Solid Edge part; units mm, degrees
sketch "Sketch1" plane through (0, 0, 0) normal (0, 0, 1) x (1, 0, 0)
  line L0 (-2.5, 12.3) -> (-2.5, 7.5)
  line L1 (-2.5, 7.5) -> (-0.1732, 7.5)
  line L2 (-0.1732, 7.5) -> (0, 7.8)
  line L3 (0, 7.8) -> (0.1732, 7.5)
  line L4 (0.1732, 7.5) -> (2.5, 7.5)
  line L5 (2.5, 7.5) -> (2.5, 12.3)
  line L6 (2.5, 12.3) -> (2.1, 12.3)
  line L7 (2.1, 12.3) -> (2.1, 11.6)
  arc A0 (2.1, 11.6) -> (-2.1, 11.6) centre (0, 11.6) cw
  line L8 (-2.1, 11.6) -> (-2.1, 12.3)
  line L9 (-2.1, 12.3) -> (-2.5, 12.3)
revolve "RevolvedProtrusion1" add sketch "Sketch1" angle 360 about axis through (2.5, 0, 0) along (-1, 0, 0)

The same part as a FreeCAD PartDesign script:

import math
import FreeCAD as App
import Part
import Sketcher
Q = App.Units.Quantity

doc = App.newDocument("Part")
body = doc.addObject("PartDesign::Body", "Body")

# Sketch on XY plane
sketch1 = body.newObject("Sketcher::SketchObject", "Sketch")
sketch1.AttachmentSupport = (doc.getObject("XY_Plane"), [""])
sketch1.MapMode = "FlatFace"
sketch1.addGeometry([
    Part.LineSegment(App.Vector(-2.1, 12.3, 0), App.Vector(-2.5, 12.3, 0)),  # 0
    Part.LineSegment(App.Vector(-2.5, 12.3, 0), App.Vector(-2.5, 7.5, 0)),  # 1
    Part.LineSegment(App.Vector(-2.5, 7.5, 0), App.Vector(-0.17, 7.5, 0)),  # 2
    Part.LineSegment(App.Vector(-0.17, 7.5, 0), App.Vector(0, 7.8, 0)),  # 3
    Part.LineSegment(App.Vector(0, 7.8, 0), App.Vector(0.17, 7.5, 0)),  # 4
    Part.LineSegment(App.Vector(0.17, 7.5, 0), App.Vector(2.5, 7.5, 0)),  # 5
    Part.LineSegment(App.Vector(2.5, 7.5, 0), App.Vector(2.5, 12.3, 0)),  # 6
    Part.LineSegment(App.Vector(2.5, 12.3, 0), App.Vector(2.1, 12.3, 0)),  # 7
    Part.LineSegment(App.Vector(2.1, 12.3, 0), App.Vector(2.1, 11.6, 0)),  # 8
    Part.ArcOfCircle(Part.Circle(App.Vector(0, 11.6, 0), App.Vector(0, 0, 1), 2.1), math.radians(180), math.radians(360)),  # 9
    Part.LineSegment(App.Vector(-2.1, 11.6, 0), App.Vector(-2.1, 12.3, 0)),  # 10
], False)
sketch1.addConstraint([
    Sketcher.Constraint("Coincident", 0, 2, 1, 1),
    Sketcher.Constraint("Coincident", 1, 2, 2, 1),
    Sketcher.Constraint("Coincident", 2, 2, 3, 1),
    Sketcher.Constraint("Coincident", 3, 2, 4, 1),
    Sketcher.Constraint("Coincident", 4, 2, 5, 1),
    Sketcher.Constraint("Coincident", 5, 2, 6, 1),
    Sketcher.Constraint("Coincident", 6, 2, 7, 1),
    Sketcher.Constraint("Coincident", 7, 2, 8, 1),
    Sketcher.Constraint("Tangent", 8, 2, 9, 2),
    Sketcher.Constraint("Tangent", 9, 1, 10, 1),
    Sketcher.Constraint("Coincident", 10, 2, 0, 1),
    Sketcher.Constraint("Horizontal", 0),
    Sketcher.Constraint("Vertical", 1),
    Sketcher.Constraint("Horizontal", 2),
    Sketcher.Constraint("Horizontal", 5),
    Sketcher.Constraint("Vertical", 6),
    Sketcher.Constraint("Horizontal", 7),
    Sketcher.Constraint("Vertical", 8),
    Sketcher.Constraint("Vertical", 10),
    Sketcher.Constraint("Symmetric", 2, 2, 4, 2, -2),
    Sketcher.Constraint("Symmetric", 0, 2, 6, 2, -2),
    Sketcher.Constraint("PointOnObject", 9, 3, -2),
    Sketcher.Constraint("PointOnObject", 3, 2, -2),
    Sketcher.Constraint("Radius", 9, 2.1),
    Sketcher.Constraint("Angle", 3, Q("60.0007 deg")),
    Sketcher.Constraint("DistanceX", 0, 2, 0, 1, 0.4),
    Sketcher.Constraint("DistanceY", 1, 2, 1, 1, 4.8),
    Sketcher.Constraint("DistanceY", 8, 2, 8, 1, 0.7),
    Sketcher.Constraint("DistanceY", -1, 1, 9, 3, 11.6),
    Sketcher.Constraint("DistanceY", -1, 1, 3, 2, 7.8),
])
revolution = body.newObject("PartDesign::Revolution", "Revolution")
revolution.Profile = sketch1
revolution.ReferenceAxis = (sketch1, ["H_Axis"])
revolution.Angle = 360

doc.recompute()
